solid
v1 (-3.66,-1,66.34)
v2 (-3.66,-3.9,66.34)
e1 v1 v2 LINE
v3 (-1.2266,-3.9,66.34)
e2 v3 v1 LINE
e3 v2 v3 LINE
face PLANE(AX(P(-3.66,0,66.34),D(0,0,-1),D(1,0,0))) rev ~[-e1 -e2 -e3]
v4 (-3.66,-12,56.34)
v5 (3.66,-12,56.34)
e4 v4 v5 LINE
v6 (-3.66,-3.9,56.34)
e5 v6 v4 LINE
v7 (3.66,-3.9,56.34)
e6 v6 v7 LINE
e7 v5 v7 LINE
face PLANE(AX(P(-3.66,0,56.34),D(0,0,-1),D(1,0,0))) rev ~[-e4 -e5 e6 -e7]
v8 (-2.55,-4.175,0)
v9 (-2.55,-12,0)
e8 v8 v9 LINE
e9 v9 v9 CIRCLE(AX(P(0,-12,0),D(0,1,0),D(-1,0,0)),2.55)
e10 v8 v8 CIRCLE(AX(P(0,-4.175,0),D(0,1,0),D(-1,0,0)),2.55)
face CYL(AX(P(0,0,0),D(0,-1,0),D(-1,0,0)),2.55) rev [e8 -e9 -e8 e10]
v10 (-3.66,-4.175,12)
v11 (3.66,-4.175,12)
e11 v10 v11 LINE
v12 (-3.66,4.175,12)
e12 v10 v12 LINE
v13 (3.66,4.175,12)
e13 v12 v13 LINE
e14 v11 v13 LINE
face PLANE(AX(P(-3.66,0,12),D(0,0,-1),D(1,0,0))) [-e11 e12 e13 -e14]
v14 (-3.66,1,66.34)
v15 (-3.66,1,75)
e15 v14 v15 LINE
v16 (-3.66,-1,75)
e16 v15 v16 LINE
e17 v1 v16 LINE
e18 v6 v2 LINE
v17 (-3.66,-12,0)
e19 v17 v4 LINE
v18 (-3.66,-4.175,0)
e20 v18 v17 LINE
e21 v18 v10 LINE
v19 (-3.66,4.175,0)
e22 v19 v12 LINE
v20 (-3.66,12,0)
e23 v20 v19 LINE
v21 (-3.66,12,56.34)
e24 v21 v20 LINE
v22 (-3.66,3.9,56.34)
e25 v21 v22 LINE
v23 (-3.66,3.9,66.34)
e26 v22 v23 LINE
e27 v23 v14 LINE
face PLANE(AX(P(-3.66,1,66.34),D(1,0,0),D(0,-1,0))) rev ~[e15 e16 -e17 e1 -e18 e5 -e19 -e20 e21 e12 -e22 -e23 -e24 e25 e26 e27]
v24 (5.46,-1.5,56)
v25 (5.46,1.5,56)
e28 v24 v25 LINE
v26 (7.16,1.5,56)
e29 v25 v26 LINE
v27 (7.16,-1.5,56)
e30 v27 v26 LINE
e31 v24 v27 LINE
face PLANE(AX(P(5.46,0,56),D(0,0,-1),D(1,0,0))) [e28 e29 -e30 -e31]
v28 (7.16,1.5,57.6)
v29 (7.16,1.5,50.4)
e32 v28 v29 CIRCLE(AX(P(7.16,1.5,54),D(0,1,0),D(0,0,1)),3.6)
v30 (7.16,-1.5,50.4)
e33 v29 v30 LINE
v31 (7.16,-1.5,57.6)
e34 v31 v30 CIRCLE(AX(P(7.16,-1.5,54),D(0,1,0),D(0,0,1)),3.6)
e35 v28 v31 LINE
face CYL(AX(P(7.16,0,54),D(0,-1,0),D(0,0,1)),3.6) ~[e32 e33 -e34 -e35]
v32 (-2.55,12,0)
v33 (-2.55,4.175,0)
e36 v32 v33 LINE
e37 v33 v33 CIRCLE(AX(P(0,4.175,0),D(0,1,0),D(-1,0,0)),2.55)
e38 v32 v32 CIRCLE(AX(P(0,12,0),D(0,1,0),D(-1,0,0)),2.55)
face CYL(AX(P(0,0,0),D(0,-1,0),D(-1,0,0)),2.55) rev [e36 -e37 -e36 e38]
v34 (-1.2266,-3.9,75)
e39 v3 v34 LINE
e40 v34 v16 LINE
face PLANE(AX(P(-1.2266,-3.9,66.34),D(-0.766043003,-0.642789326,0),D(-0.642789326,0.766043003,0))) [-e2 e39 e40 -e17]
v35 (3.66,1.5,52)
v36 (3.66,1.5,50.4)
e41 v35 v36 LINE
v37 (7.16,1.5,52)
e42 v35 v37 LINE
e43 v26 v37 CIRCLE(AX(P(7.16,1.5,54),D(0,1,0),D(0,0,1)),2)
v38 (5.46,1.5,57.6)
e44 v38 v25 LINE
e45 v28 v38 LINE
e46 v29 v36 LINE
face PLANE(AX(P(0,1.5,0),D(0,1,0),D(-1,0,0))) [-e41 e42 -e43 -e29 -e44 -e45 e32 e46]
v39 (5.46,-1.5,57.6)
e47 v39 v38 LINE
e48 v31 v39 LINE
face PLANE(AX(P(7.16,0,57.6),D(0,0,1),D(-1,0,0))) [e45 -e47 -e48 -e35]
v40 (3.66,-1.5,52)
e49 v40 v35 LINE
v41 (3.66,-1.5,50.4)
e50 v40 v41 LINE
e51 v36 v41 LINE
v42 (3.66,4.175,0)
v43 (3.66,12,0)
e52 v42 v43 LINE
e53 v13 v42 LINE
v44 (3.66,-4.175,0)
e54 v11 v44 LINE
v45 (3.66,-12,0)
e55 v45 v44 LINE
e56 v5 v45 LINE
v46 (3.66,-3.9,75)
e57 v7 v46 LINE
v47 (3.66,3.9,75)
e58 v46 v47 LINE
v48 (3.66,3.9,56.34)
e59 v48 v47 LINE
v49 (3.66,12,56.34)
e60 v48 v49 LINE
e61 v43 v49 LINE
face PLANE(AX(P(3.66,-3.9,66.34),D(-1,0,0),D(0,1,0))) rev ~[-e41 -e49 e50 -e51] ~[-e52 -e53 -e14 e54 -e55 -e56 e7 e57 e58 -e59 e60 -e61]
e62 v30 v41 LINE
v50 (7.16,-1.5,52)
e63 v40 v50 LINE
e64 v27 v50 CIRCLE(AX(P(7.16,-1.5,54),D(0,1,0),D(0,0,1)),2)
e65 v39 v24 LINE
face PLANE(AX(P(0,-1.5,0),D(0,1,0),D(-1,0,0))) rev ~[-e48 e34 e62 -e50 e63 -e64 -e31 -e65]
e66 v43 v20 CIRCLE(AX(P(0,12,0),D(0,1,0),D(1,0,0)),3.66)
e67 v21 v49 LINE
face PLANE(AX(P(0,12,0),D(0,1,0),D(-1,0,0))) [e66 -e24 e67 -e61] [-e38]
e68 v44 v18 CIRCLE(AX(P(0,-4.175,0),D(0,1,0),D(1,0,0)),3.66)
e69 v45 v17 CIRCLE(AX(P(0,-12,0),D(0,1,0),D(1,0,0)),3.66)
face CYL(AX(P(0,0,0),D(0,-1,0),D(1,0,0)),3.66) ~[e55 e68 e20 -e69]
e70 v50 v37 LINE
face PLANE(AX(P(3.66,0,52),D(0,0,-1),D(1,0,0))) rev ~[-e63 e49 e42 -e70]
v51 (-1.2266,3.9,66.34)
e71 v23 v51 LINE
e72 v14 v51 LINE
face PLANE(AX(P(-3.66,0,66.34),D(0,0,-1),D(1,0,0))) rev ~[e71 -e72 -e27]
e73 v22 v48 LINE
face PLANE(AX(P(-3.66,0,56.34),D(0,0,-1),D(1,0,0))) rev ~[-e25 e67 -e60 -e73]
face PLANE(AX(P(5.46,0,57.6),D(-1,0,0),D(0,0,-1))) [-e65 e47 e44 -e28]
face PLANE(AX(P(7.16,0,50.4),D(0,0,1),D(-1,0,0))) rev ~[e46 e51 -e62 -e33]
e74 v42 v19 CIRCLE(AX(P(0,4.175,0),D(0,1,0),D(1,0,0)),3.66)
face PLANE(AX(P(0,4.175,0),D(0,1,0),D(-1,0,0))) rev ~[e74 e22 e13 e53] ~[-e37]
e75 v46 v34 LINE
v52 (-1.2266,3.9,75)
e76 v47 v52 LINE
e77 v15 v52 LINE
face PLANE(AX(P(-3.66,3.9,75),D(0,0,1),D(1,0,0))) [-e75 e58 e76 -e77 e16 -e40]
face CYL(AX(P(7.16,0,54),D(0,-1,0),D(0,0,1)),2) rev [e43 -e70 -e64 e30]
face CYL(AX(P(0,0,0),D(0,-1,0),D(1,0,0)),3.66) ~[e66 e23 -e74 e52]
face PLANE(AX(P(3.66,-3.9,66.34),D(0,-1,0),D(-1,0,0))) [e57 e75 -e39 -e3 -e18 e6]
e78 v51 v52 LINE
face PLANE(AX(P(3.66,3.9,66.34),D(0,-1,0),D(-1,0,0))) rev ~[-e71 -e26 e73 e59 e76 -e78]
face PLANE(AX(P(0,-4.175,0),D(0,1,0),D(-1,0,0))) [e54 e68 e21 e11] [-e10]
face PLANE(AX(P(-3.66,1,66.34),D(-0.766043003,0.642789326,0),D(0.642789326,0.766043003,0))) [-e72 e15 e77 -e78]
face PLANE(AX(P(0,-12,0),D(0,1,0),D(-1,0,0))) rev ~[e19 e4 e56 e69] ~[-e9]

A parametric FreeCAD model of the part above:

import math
import FreeCAD as App
import Part
import Sketcher
Q = App.Units.Quantity

doc = App.newDocument("Part")
body = doc.addObject("PartDesign::Body", "Body")

sketch1 = body.newObject("Sketcher::SketchObject", "Sketch")
sketch1.AttachmentSupport = (doc.getObject("XZ_Plane"), [""])
sketch1.MapMode = "FlatFace"
sketch1.addGeometry([
    Part.LineSegment(App.Vector(-3.66, 56.34, 0), App.Vector(3.66, 56.34, 0)),
    Part.LineSegment(App.Vector(3.66, 56.34, 0), App.Vector(3.66, 0, 0)),
    Part.ArcOfCircle(Part.Circle(App.Vector(0, 0, 0), App.Vector(0, 0, 1), 3.66), math.radians(180), math.radians(360)),
    Part.LineSegment(App.Vector(-3.66, 0, 0), App.Vector(-3.66, 56.34, 0)),
    Part.Circle(App.Vector(0, 0, 0), App.Vector(0, 0, 1), 2.55),
], False)
sketch1.addConstraint([
    Sketcher.Constraint("Coincident", 0, 2, 1, 1),
    Sketcher.Constraint("Tangent", 1, 2, 2, 2),
    Sketcher.Constraint("Tangent", 2, 1, 3, 1),
    Sketcher.Constraint("Coincident", 3, 2, 0, 1),
    Sketcher.Constraint("Horizontal", 0),
    Sketcher.Constraint("Vertical", 1),
    Sketcher.Constraint("Vertical", 3),
    Sketcher.Constraint("Coincident", 2, 3, -1, 1),
    Sketcher.Constraint("Coincident", 4, 3, -1, 1),
    Sketcher.Constraint("Diameter", 4, 5.1),
    Sketcher.Constraint("Radius", 2, 3.66),
    Sketcher.Constraint("DistanceY", 1, 2, 1, 1, 56.34),
])
pad1 = body.newObject("PartDesign::Pad", "Pad")
pad1.Profile = sketch1
pad1.Length = 24
pad1.Midplane = True

sketch2 = body.newObject("Sketcher::SketchObject", "Sketch001")
sketch2.AttachmentSupport = (doc.getObject("XZ_Plane"), [""])
sketch2.MapMode = "FlatFace"
sketch2.addGeometry([
    Part.LineSegment(App.Vector(-3.66, 0, 0), App.Vector(-3.66, 12, 0)),
    Part.LineSegment(App.Vector(-3.66, 12, 0), App.Vector(3.66, 12, 0)),
    Part.LineSegment(App.Vector(3.66, 12, 0), App.Vector(3.66, 0, 0)),
    Part.ArcOfCircle(Part.Circle(App.Vector(0, 0, 0), App.Vector(0, 0, 1), 3.66), math.radians(180), math.radians(360)),
    Part.Circle(App.Vector(0, 0, 0), App.Vector(0, 0, 1), 2.55),
], False)
sketch2.addConstraint([
    Sketcher.Constraint("Coincident", 0, 2, 1, 1),
    Sketcher.Constraint("Coincident", 1, 2, 2, 1),
    Sketcher.Constraint("Tangent", 2, 2, 3, 2),
    Sketcher.Constraint("Tangent", 3, 1, 0, 1),
    Sketcher.Constraint("Vertical", 0),
    Sketcher.Constraint("Horizontal", 1),
    Sketcher.Constraint("Vertical", 2),
    Sketcher.Constraint("Coincident", 3, 3, -1, 1),
    Sketcher.Constraint("Coincident", 4, 3, -1, 1),
    Sketcher.Constraint("Diameter", 4, 5.1),
    Sketcher.Constraint("DistanceY", 0, 1, 0, 2, 12.0),
    Sketcher.Constraint("Radius", 3, 3.66),
])
pocket1 = body.newObject("PartDesign::Pocket", "Pocket")
pocket1.Profile = sketch2
pocket1.Length = 8.35
pocket1.Midplane = True

sketch3 = body.newObject("Sketcher::SketchObject", "Sketch002")
sketch3.AttachmentSupport = (doc.getObject("XZ_Plane"), [""])
sketch3.MapMode = "FlatFace"
sketch3.addGeometry([
    Part.LineSegment(App.Vector(-3.66, 66.34, 0), App.Vector(3.66, 66.34, 0)),
    Part.LineSegment(App.Vector(3.66, 66.34, 0), App.Vector(3.66, 56.34, 0)),
    Part.LineSegment(App.Vector(3.66, 56.34, 0), App.Vector(-3.66, 56.34, 0)),
    Part.LineSegment(App.Vector(-3.66, 56.34, 0), App.Vector(-3.66, 66.34, 0)),
], False)
sketch3.addConstraint([
    Sketcher.Constraint("Coincident", 0, 2, 1, 1),
    Sketcher.Constraint("Coincident", 1, 2, 2, 1),
    Sketcher.Constraint("Coincident", 2, 2, 3, 1),
    Sketcher.Constraint("Coincident", 3, 2, 0, 1),
    Sketcher.Constraint("Horizontal", 0),
    Sketcher.Constraint("Vertical", 1),
    Sketcher.Constraint("Horizontal", 2),
    Sketcher.Constraint("Vertical", 3),
    Sketcher.Constraint("DistanceX", 0, 1, 0, 2, 7.32),
    Sketcher.Constraint("DistanceY", 1, 2, 1, 1, 10.0),
    Sketcher.Constraint("DistanceX", -1, 1, 0, 2, 3.66),
    Sketcher.Constraint("DistanceY", -1, 1, 0, 2, 66.34),
])
pad2 = body.newObject("PartDesign::Pad", "Pad001")
pad2.Profile = sketch3
pad2.Length = 7.8
pad2.Midplane = True

sketch4 = body.newObject("Sketcher::SketchObject", "Sketch003")
sketch4.AttachmentSupport = (doc.getObject("XY_Plane"), [""])
sketch4.MapMode = "FlatFace"
sketch4.AttachmentOffset = App.Placement(App.Vector(0, 0, 66.34), App.Rotation())
sketch4.addGeometry([
    Part.LineSegment(App.Vector(-1.2266, -3.9, 0), App.Vector(3.66, -3.9, 0)),
    Part.LineSegment(App.Vector(3.66, -3.9, 0), App.Vector(3.66, 3.9, 0)),
    Part.LineSegment(App.Vector(3.66, 3.9, 0), App.Vector(-1.2266, 3.9, 0)),
    Part.LineSegment(App.Vector(-1.2266, 3.9, 0), App.Vector(-3.66, 1, 0)),
    Part.LineSegment(App.Vector(-3.66, 1, 0), App.Vector(-3.66, -1, 0)),
    Part.LineSegment(App.Vector(-3.66, -1, 0), App.Vector(-1.2266, -3.9, 0)),
], False)
sketch4.addConstraint([
    Sketcher.Constraint("Coincident", 0, 2, 1, 1),
    Sketcher.Constraint("Coincident", 1, 2, 2, 1),
    Sketcher.Constraint("Coincident", 2, 2, 3, 1),
    Sketcher.Constraint("Coincident", 3, 2, 4, 1),
    Sketcher.Constraint("Coincident", 4, 2, 5, 1),
    Sketcher.Constraint("Coincident", 5, 2, 0, 1),
    Sketcher.Constraint("Horizontal", 0),
    Sketcher.Constraint("Vertical", 1),
    Sketcher.Constraint("Horizontal", 2),
    Sketcher.Constraint("Vertical", 4),
    Sketcher.Constraint("Symmetric", 2, 2, 5, 2, -1),
    Sketcher.Constraint("Equal", 3, 5),
    Sketcher.Constraint("DistanceY", 4, 2, 4, 1, 2.0),
    Sketcher.Constraint("Angle", 5, Q("-49.9999 deg")),
    Sketcher.Constraint("DistanceY", 1, 1, 1, 2, 7.8),
    Sketcher.Constraint("DistanceX", -1, 1, 0, 2, 3.66),
    Sketcher.Constraint("DistanceX", 3, 2, -1, 1, 3.66),
])
pad3 = body.newObject("PartDesign::Pad", "Pad002")
pad3.Profile = sketch4
pad3.Length = 8.66

sketch5 = body.newObject("Sketcher::SketchObject", "Sketch004")
sketch5.AttachmentSupport = (doc.getObject("XZ_Plane"), [""])
sketch5.MapMode = "FlatFace"
sketch5.addGeometry([
    Part.LineSegment(App.Vector(3.66, 50.4, 0), App.Vector(3.66, 52, 0)),
    Part.LineSegment(App.Vector(3.66, 52, 0), App.Vector(7.16, 52, 0)),
    Part.ArcOfCircle(Part.Circle(App.Vector(7.16, 54, 0), App.Vector(0, 0, 1), 2), math.radians(-90), math.radians(90)),
    Part.LineSegment(App.Vector(7.16, 56, 0), App.Vector(5.46, 56, 0)),
    Part.LineSegment(App.Vector(5.46, 56, 0), App.Vector(5.46, 57.6, 0)),
    Part.LineSegment(App.Vector(5.46, 57.6, 0), App.Vector(7.16, 57.6, 0)),
    Part.ArcOfCircle(Part.Circle(App.Vector(7.16, 54, 0), App.Vector(0, 0, 1), 3.6), math.radians(-90), math.radians(90)),
    Part.LineSegment(App.Vector(7.16, 50.4, 0), App.Vector(3.66, 50.4, 0)),
], False)
sketch5.addConstraint([
    Sketcher.Constraint("Coincident", 0, 2, 1, 1),
    Sketcher.Constraint("Tangent", 1, 2, 2, 1),
    Sketcher.Constraint("Tangent", 2, 2, 3, 1),
    Sketcher.Constraint("Coincident", 3, 2, 4, 1),
    Sketcher.Constraint("Coincident", 4, 2, 5, 1),
    Sketcher.Constraint("Tangent", 5, 2, 6, 2),
    Sketcher.Constraint("Tangent", 6, 1, 7, 1),
    Sketcher.Constraint("Coincident", 7, 2, 0, 1),
    Sketcher.Constraint("Vertical", 0),
    Sketcher.Constraint("Horizontal", 1),
    Sketcher.Constraint("Horizontal", 3),
    Sketcher.Constraint("Vertical", 4),
    Sketcher.Constraint("Horizontal", 5),
    Sketcher.Constraint("Horizontal", 7),
    Sketcher.Constraint("Coincident", 6, 3, 2, 3),
    Sketcher.Constraint("Radius", 2, 2.0),
    Sketcher.Constraint("Radius", 6, 3.6),
    Sketcher.Constraint("DistanceX", 1, 1, 1, 2, 3.5),
    Sketcher.Constraint("DistanceX", 3, 2, 3, 1, 1.7),
    Sketcher.Constraint("DistanceY", -1, 1, 0, 2, 52.0),
    Sketcher.Constraint("DistanceX", -1, 1, 2, 3, 7.16),
])
pad4 = body.newObject("PartDesign::Pad", "Pad003")
pad4.Profile = sketch5
pad4.Length = 3
pad4.Midplane = True

doc.recompute()
